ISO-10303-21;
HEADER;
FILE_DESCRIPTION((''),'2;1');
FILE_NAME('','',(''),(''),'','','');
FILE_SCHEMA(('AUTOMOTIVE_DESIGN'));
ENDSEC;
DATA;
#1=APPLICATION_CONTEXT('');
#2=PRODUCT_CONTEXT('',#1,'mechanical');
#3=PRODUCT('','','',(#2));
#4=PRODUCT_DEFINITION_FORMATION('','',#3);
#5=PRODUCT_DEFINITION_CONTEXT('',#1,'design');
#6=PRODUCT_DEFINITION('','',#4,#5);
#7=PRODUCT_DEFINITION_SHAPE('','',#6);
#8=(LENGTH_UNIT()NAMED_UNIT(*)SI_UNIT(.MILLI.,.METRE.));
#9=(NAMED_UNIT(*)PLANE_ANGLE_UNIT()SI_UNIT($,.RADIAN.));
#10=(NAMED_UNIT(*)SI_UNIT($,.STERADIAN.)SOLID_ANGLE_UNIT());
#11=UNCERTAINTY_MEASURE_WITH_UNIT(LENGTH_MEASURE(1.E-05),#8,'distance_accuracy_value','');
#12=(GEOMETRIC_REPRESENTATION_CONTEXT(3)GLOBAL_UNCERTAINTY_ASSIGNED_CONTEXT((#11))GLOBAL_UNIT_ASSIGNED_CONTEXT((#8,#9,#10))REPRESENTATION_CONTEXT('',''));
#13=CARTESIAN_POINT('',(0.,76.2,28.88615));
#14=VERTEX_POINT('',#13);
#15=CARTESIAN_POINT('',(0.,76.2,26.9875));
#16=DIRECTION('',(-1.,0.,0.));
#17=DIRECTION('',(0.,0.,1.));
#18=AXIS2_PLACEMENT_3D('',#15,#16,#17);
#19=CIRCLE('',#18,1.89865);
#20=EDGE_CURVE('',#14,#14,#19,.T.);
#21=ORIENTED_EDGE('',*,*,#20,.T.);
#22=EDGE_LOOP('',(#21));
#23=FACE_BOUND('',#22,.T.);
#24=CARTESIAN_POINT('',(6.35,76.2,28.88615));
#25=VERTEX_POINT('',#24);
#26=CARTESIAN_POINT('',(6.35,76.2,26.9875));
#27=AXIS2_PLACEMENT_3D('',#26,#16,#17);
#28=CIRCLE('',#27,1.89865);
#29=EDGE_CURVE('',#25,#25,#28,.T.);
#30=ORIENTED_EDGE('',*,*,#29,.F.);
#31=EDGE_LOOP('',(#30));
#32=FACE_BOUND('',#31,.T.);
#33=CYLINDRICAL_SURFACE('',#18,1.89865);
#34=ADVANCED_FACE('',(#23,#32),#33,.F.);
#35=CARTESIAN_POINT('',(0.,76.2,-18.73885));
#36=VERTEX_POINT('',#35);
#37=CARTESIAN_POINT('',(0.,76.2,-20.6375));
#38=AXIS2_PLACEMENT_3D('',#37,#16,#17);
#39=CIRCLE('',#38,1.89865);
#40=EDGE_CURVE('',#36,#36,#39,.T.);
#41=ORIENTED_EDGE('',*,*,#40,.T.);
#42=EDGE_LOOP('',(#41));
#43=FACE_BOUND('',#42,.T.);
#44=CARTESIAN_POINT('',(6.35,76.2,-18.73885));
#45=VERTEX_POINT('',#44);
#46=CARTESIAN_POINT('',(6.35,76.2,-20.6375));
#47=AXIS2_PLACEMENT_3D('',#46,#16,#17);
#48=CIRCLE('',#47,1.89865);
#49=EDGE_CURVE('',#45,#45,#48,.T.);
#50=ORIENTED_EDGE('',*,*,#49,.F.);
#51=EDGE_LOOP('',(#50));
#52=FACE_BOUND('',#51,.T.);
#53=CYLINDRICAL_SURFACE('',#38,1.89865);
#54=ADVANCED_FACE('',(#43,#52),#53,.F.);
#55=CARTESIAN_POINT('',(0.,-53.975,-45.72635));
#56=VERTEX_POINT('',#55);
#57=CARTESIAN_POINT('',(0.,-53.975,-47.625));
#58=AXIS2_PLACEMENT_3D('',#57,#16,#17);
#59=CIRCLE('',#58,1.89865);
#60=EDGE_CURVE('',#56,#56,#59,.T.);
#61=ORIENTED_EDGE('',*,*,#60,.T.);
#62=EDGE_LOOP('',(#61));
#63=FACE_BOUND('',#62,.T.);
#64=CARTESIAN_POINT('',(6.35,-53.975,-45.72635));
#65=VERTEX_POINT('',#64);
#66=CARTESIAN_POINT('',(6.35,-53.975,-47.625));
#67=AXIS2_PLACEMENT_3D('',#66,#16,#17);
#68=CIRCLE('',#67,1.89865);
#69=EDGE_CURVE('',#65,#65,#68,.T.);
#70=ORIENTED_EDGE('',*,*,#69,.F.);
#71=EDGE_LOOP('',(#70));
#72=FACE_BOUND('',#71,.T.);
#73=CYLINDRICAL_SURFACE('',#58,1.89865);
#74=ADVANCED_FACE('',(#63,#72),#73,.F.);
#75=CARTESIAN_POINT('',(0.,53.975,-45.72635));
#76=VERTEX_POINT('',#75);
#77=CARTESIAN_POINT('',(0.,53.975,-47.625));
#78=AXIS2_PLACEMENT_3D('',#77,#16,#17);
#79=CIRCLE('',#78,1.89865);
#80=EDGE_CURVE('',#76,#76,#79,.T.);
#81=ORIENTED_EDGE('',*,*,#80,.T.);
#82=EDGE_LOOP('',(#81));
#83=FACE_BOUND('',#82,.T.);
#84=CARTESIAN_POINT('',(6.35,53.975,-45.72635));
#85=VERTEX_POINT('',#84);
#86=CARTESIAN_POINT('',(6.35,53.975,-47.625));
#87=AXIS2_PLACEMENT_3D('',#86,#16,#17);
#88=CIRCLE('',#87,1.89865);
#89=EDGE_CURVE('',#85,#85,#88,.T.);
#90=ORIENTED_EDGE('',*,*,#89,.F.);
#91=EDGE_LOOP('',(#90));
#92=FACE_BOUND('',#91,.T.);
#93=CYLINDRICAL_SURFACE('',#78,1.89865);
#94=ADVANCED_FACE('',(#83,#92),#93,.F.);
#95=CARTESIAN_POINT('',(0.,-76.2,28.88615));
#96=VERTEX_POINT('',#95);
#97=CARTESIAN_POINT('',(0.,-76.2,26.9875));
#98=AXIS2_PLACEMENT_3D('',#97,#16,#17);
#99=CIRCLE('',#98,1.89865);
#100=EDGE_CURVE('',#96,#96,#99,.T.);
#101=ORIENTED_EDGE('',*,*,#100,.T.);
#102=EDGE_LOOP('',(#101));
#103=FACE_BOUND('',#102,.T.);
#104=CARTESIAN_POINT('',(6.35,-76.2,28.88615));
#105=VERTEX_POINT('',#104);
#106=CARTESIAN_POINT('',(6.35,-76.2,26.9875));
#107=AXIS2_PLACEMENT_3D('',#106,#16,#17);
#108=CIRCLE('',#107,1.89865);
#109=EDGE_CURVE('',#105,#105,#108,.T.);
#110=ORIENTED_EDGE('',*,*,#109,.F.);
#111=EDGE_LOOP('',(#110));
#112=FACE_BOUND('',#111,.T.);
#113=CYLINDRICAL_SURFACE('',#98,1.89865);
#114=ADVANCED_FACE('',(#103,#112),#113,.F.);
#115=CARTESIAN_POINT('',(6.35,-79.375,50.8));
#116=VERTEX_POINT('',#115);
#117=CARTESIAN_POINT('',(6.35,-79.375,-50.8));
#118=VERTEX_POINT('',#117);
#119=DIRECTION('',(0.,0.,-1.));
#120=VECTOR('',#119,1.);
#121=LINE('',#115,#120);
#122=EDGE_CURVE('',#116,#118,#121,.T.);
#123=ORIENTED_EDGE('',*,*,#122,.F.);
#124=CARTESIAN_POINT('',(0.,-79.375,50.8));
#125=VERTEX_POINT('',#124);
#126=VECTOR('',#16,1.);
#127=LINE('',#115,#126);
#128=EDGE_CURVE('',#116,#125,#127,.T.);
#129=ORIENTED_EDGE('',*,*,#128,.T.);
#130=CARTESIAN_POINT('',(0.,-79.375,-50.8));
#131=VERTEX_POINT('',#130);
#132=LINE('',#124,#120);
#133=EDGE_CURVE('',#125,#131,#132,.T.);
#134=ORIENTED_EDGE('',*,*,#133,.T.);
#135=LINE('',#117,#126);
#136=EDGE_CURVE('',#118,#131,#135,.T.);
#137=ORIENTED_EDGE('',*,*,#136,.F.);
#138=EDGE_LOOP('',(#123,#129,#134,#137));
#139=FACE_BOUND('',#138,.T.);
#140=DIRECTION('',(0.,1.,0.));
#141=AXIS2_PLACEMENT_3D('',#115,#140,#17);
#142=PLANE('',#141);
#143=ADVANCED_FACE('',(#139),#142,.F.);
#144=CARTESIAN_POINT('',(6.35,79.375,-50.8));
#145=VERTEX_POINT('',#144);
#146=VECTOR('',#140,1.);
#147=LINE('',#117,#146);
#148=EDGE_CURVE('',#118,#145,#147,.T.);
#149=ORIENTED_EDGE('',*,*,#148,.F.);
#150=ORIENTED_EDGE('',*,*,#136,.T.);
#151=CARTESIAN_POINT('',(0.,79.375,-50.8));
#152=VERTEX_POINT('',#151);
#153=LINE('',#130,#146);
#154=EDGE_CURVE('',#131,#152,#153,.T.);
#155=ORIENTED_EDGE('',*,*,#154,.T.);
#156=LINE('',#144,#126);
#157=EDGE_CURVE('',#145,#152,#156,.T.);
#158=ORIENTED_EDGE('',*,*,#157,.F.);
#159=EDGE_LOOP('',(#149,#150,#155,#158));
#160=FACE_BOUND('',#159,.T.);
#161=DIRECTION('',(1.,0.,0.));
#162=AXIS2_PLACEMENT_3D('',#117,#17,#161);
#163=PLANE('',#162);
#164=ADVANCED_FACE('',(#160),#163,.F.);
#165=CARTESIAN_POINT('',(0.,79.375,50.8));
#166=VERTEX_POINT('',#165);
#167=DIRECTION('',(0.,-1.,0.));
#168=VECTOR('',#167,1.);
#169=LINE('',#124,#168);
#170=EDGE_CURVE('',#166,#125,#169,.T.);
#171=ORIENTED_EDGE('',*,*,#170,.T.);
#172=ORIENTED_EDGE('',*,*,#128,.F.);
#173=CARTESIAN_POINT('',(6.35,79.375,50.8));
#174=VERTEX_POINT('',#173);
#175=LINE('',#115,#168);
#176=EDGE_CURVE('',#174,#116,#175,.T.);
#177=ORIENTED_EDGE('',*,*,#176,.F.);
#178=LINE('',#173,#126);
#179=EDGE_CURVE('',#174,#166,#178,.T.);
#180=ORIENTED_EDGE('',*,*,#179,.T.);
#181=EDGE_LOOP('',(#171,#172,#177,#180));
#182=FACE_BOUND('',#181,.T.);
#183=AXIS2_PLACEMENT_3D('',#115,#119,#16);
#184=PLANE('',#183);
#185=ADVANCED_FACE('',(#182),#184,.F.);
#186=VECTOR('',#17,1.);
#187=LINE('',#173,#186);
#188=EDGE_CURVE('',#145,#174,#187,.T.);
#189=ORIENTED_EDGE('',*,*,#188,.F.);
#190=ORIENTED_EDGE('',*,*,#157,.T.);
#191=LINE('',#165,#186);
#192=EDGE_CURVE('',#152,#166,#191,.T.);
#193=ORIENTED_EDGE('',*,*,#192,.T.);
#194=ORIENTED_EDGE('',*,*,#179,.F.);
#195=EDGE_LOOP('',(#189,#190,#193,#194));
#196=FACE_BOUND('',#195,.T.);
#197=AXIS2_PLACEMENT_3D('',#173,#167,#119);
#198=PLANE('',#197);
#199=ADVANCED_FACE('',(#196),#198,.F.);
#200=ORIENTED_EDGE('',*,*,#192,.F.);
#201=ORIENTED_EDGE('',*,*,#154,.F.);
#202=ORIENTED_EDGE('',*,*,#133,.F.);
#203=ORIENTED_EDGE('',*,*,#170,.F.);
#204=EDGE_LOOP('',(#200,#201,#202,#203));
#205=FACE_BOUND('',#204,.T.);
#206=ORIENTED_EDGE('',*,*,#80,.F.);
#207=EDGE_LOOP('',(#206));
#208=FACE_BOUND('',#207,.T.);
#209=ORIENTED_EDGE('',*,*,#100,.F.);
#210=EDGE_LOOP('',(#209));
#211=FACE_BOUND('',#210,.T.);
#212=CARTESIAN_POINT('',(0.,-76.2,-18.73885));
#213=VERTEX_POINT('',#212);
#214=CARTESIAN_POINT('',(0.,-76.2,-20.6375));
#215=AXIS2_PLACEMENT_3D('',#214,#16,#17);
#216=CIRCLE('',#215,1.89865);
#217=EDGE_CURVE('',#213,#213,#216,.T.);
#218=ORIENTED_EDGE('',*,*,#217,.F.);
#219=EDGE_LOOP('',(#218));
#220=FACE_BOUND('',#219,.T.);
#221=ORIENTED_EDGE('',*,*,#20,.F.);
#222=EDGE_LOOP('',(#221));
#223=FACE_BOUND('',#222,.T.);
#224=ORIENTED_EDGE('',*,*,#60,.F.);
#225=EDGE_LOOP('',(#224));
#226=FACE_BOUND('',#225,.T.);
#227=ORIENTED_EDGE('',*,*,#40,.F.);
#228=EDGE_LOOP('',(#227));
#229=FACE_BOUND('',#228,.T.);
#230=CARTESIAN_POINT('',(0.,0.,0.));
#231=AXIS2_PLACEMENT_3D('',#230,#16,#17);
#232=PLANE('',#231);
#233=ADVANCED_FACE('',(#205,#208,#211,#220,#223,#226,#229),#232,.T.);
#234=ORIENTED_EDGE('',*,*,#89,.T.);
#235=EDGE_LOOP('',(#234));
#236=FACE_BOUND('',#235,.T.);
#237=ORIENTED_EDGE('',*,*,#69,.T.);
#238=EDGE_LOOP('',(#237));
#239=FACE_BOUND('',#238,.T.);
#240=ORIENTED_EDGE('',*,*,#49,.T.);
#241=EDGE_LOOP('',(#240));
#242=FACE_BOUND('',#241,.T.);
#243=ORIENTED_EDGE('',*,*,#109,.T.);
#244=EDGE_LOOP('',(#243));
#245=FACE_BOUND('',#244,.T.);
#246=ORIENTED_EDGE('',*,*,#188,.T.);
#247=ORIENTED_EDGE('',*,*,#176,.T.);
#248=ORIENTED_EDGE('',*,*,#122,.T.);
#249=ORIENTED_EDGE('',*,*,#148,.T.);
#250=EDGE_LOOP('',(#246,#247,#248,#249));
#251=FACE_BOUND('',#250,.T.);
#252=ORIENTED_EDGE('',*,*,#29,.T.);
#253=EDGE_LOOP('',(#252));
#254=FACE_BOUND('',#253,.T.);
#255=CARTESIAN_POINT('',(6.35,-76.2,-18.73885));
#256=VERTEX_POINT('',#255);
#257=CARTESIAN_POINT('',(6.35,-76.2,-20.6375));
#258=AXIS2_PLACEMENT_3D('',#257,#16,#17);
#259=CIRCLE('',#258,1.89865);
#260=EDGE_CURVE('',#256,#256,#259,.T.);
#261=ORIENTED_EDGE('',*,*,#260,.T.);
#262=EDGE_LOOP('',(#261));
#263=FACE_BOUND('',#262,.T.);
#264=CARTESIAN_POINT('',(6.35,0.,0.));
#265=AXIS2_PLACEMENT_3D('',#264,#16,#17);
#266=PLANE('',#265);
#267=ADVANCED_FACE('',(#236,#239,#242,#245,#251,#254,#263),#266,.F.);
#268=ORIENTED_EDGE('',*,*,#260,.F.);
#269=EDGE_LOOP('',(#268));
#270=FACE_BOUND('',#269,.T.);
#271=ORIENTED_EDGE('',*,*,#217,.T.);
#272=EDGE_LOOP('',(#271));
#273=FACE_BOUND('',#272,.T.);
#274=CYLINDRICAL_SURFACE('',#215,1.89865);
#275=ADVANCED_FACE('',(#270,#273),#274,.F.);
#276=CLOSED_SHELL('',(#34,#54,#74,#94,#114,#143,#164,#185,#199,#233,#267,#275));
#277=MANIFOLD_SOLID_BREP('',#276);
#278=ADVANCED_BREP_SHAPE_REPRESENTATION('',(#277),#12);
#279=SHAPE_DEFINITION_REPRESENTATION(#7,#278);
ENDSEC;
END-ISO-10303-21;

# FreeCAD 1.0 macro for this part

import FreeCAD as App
import Part
import Sketcher
Q = App.Units.Quantity

doc = App.newDocument("Part")
body = doc.addObject("PartDesign::Body", "Body")

sketch1 = body.newObject("Sketcher::SketchObject", "Sketch")
sketch1.AttachmentSupport = (doc.getObject("YZ_Plane"), [""])
sketch1.MapMode = "FlatFace"
sketch1.addGeometry([
    Part.LineSegment(App.Vector(79, 51, 0), App.Vector(-79, 51, 0)),
    Part.LineSegment(App.Vector(-79, 51, 0), App.Vector(-79, -51, 0)),
    Part.LineSegment(App.Vector(-79, -51, 0), App.Vector(79, -51, 0)),
    Part.LineSegment(App.Vector(79, -51, 0), App.Vector(79, 51, 0)),
], False)
sketch1.addConstraint([
    Sketcher.Constraint("Coincident", 0, 2, 1, 1),
    Sketcher.Constraint("Coincident", 1, 2, 2, 1),
    Sketcher.Constraint("Coincident", 2, 2, 3, 1),
    Sketcher.Constraint("Coincident", 3, 2, 0, 1),
    Sketcher.Constraint("Horizontal", 0),
    Sketcher.Constraint("Vertical", 1),
    Sketcher.Constraint("Horizontal", 2),
    Sketcher.Constraint("Vertical", 3),
    Sketcher.Constraint("Symmetric", 0, 2, 2, 2, -1, 1),
    Sketcher.Constraint("DistanceY", 1, 2, 1, 1, Q("4 in")),
    Sketcher.Constraint("DistanceX", 0, 2, 0, 1, Q("6.25 in")),
])
pad1 = body.newObject("PartDesign::Pad", "Pad")
pad1.Profile = sketch1
pad1.Length = Q("0.25 in")

sketch2 = body.newObject("Sketcher::SketchObject", "Sketch001")
sketch2.AttachmentSupport = (doc.getObject("YZ_Plane"), [""])
sketch2.MapMode = "FlatFace"
sketch2.addGeometry([
    Part.Circle(App.Vector(54, -47.6, 0), App.Vector(0, 0, 1), 1.9),
    Part.Circle(App.Vector(76.2, -20.6, 0), App.Vector(0, 0, 1), 1.9),
    Part.Circle(App.Vector(76.2, 27, 0), App.Vector(0, 0, 1), 1.9),
    Part.Circle(App.Vector(-76.2, 27, 0), App.Vector(0, 0, 1), 1.9),
    Part.Circle(App.Vector(-76.2, -20.6, 0), App.Vector(0, 0, 1), 1.9),
    Part.Circle(App.Vector(-54, -47.6, 0), App.Vector(0, 0, 1), 1.9),
], False)
sketch2.addConstraint([
    Sketcher.Constraint("Equal", 0, 1),
    Sketcher.Constraint("Equal", 1, 2),
    Sketcher.Constraint("Equal", 2, 3),
    Sketcher.Constraint("Equal", 3, 4),
    Sketcher.Constraint("Equal", 4, 5),
    Sketcher.Constraint("Symmetric", 2, 3, 3, 3, -2),
    Sketcher.Constraint("Symmetric", 1, 3, 4, 3, -2),
    Sketcher.Constraint("Symmetric", 0, 3, 5, 3, -2),
    Sketcher.Constraint("Vertical", 1, 3, 2, 3),
    Sketcher.Constraint("DistanceX", -1, 1, 1, 3, Q("3 in")),
    Sketcher.Constraint("Diameter", 0, Q("0.1495 in")),
    Sketcher.Constraint("DistanceX", 5, 3, 0, 3, Q("4.25 in")),
    Sketcher.Constraint("DistanceY", 0, 3, -1, 1, Q("1.875 in")),
    Sketcher.Constraint("DistanceY", 1, 3, -1, 1, Q("0.8125 in")),
    Sketcher.Constraint("DistanceY", -1, 1, 2, 3, Q("1.0625 in")),
])
doc.recompute()
hole = body.newObject("PartDesign::Hole", "Hole")
hole.Profile = sketch2
hole.ThreadType = "None"
hole.Diameter = Q("0.1495 in")
hole.DepthType = "ThroughAll"
hole.Reversed = True

doc.recompute()
